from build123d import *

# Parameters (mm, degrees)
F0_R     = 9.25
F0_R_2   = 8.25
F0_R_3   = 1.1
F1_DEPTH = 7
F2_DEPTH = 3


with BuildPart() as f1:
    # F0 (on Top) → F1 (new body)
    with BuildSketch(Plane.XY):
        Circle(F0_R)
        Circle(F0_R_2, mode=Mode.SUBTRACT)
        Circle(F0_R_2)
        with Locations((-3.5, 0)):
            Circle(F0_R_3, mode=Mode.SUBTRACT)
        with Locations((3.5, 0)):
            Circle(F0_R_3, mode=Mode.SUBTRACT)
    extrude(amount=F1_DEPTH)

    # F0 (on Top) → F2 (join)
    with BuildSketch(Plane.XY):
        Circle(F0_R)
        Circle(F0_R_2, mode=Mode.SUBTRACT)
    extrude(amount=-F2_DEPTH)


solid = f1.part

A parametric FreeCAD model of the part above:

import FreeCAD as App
import Part
import Sketcher

V = App.Vector
Q = App.Units.Quantity

doc = App.newDocument("Part")
body = doc.addObject("PartDesign::Body", "Body")

# Sketch on XY plane
sketch1 = body.newObject("Sketcher::SketchObject", "Sketch")
sketch1.AttachmentSupport = (doc.getObject("XY_Plane"), [""])
sketch1.MapMode = "FlatFace"
sketch1.addGeometry([
    Part.Circle(V(0, 0, 0), V(0, 0, 1), 9.2),
    Part.Circle(V(-3.5, 0, 0), V(0, 0, 1), 1.1),
    Part.Circle(V(3.5, 0, 0), V(0, 0, 1), 1.1),
], False)
sketch1.addConstraint([
    Sketcher.Constraint("Coincident", 0, 3, -1, 1),
    Sketcher.Constraint("Equal", 1, 2),
    Sketcher.Constraint("Symmetric", 1, 3, 2, 3, -1, 1),
    Sketcher.Constraint("PointOnObject", 1, 3, -1),
    Sketcher.Constraint("Diameter", 0, Q("18.5 mm")),
    Sketcher.Constraint("Diameter", 1, Q("2.2 mm")),
    Sketcher.Constraint("DistanceX", 1, 3, 2, 3, Q("7 mm")),
])
pad1 = body.newObject("PartDesign::Pad", "Pad")
pad1.Profile = sketch1
pad1.Length = 7

# Sketch on XY plane
sketch2 = body.newObject("Sketcher::SketchObject", "Sketch001")
sketch2.AttachmentSupport = (doc.getObject("XY_Plane"), [""])
sketch2.MapMode = "FlatFace"
sketch2.addGeometry([
    Part.Circle(V(0, 0, 0), V(0, 0, 1), 9),
    Part.Circle(V(0, 0, 0), V(0, 0, 1), 8),
], False)
sketch2.addConstraint([
    Sketcher.Constraint("Coincident", 0, 3, -1, 1),
    Sketcher.Constraint("Coincident", 1, 3, -1, 1),
    Sketcher.Constraint("Diameter", 0, Q("18.5 mm")),
    Sketcher.Constraint("Diameter", 1, Q("16.5 mm")),
])
pad2 = body.newObject("PartDesign::Pad", "Pad001")
pad2.Profile = sketch2
pad2.Length = 3
pad2.Reversed = True

doc.recompute()
